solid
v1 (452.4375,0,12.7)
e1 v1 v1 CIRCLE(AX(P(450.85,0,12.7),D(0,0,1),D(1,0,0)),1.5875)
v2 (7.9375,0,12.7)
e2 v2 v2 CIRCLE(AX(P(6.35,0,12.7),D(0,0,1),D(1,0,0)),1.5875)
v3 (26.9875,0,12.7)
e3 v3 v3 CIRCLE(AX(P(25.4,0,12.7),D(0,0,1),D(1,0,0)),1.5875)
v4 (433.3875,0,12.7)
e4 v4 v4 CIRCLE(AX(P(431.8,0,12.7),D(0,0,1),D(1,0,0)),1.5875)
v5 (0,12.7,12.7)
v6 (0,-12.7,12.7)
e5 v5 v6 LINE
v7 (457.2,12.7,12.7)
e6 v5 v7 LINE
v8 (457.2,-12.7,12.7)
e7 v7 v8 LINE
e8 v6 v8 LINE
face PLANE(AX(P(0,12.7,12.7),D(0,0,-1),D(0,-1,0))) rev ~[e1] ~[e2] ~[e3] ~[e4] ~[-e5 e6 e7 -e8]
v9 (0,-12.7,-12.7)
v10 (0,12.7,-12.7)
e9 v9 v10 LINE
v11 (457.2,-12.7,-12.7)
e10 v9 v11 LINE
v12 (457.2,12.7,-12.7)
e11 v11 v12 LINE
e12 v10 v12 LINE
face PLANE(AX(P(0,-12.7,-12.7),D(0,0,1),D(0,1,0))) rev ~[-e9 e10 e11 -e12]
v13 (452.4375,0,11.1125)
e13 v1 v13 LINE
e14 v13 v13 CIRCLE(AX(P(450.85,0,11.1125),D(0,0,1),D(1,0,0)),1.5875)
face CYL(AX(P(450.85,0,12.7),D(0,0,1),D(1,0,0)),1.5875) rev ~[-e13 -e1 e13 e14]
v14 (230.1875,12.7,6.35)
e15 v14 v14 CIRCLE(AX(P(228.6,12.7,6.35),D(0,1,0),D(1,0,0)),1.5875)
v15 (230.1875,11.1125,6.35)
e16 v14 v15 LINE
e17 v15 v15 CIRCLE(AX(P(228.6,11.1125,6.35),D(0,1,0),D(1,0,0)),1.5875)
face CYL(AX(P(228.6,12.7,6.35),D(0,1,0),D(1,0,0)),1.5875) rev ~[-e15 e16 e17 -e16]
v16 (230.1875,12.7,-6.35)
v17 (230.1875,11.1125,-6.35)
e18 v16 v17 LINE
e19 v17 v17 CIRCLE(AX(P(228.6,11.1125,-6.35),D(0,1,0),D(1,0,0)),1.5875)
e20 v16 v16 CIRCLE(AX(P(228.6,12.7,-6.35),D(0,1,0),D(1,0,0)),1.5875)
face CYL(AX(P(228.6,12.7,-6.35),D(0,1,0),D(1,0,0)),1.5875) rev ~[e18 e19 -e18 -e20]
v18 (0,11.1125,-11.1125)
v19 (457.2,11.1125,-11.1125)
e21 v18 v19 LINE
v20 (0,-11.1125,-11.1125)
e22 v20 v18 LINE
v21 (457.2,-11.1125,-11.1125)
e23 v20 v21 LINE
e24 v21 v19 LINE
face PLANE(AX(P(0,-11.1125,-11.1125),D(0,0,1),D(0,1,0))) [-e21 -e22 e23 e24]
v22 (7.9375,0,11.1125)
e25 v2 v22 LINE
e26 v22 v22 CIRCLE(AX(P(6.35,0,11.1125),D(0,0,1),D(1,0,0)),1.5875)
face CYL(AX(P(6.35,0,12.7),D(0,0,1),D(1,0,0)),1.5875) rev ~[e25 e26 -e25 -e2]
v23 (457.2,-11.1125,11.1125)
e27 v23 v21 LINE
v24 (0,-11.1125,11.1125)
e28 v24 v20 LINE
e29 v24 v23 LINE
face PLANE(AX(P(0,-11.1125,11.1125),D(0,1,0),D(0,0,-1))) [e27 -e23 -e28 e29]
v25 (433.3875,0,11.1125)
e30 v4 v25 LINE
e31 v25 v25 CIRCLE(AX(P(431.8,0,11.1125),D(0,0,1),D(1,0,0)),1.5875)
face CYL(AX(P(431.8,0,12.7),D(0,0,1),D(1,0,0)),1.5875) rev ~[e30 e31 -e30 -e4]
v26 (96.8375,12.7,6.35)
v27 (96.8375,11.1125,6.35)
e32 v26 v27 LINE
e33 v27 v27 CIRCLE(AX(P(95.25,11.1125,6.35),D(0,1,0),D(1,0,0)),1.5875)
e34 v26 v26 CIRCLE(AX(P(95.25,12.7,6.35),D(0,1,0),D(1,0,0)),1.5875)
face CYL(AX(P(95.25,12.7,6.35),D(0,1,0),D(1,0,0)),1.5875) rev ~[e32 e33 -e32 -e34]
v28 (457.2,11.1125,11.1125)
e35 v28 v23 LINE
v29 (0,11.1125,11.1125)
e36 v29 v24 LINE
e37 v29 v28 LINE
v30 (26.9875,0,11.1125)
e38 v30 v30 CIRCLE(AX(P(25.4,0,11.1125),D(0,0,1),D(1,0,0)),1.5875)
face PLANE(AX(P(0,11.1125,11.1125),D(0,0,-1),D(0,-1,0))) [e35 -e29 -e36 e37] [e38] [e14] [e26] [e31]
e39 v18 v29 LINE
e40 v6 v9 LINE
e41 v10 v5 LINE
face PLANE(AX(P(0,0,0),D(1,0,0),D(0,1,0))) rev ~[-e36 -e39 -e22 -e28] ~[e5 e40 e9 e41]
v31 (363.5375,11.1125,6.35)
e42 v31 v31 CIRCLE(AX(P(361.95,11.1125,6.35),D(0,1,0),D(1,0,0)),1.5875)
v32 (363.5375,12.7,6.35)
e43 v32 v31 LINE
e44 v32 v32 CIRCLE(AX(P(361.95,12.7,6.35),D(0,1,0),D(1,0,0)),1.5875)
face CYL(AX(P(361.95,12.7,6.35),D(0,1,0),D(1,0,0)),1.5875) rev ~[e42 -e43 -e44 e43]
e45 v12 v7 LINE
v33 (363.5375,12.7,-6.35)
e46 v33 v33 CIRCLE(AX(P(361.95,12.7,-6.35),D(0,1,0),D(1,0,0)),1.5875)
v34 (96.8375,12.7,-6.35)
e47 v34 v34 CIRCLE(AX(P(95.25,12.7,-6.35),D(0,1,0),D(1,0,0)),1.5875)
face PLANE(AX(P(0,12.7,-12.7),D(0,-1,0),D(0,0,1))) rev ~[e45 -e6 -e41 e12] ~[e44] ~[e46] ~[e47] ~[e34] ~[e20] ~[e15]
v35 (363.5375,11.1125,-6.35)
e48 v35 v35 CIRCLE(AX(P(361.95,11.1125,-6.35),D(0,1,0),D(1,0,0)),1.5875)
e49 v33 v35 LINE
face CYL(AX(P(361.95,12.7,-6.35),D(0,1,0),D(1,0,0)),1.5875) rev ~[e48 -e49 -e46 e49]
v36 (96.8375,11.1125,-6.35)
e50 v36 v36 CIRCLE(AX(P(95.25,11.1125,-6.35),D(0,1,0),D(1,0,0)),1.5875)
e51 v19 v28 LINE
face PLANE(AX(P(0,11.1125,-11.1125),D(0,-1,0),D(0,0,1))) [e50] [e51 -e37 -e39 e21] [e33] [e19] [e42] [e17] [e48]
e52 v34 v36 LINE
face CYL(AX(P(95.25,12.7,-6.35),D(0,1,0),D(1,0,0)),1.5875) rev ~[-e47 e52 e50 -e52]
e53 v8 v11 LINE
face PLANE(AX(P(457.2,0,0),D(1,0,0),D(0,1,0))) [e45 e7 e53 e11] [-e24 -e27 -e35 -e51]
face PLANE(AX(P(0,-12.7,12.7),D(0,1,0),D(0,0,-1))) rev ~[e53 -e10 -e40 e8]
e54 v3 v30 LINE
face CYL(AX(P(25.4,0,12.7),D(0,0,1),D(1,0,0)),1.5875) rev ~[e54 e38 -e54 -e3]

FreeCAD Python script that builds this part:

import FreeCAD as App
import Part
import Sketcher

V = App.Vector
Q = App.Units.Quantity


def add_polygon(sketch, points):
    """Adds a closed chain of lines whose ends are joined by coincident constraints."""
    first, n = sketch.GeometryCount, len(points)
    for a, b in zip(points, points[1:] + points[:1]):
        sketch.addGeometry(Part.LineSegment(App.Vector(*a, 0), App.Vector(*b, 0)), False)
    for i in range(n):
        sketch.addConstraint(Sketcher.Constraint("Coincident", first + i, 2, first + (i + 1) % n, 1))

doc = App.newDocument("Part")
body = doc.addObject("PartDesign::Body", "Body")

sketch1 = body.newObject("Sketcher::SketchObject", "Sketch")
sketch1.AttachmentSupport = (doc.getObject("YZ_Plane"), [""])
sketch1.MapMode = "FlatFace"
add_polygon(sketch1, [(12.7, -12.7), (12.7, 12.7), (-12.7, 12.7), (-12.7, -12.7)])
add_polygon(sketch1, [(-11.1125, 11.1125), (11.1125, 11.1125), (11.1125, -11.1125), (-11.1125, -11.1125)])
sketch1.addConstraint(Sketcher.Constraint("Vertical", 0))
sketch1.addConstraint(Sketcher.Constraint("Horizontal", 1))
sketch1.addConstraint(Sketcher.Constraint("Vertical", 2))
sketch1.addConstraint(Sketcher.Constraint("Horizontal", 3))
sketch1.addConstraint(Sketcher.Constraint("Horizontal", 4))
sketch1.addConstraint(Sketcher.Constraint("Vertical", 5))
sketch1.addConstraint(Sketcher.Constraint("Horizontal", 6))
sketch1.addConstraint(Sketcher.Constraint("Vertical", 7))
sketch1.addConstraint(Sketcher.Constraint("Symmetric", 0, 2, 2, 2, -1, 1))
sketch1.addConstraint(Sketcher.Constraint("Symmetric", 4, 2, 6, 2, -1, 1))
sketch1.addConstraint(Sketcher.Constraint("Equal", 3, 0))
sketch1.addConstraint(Sketcher.Constraint("Equal", 6, 5))
sketch1.addConstraint(Sketcher.Constraint("DistanceX", 1, 2, 1, 1, Q("1 in")))
sketch1.addConstraint(Sketcher.Constraint("DistanceX", 4, 2, 0, 2, Q("0.0625 in")))
pad1 = body.newObject("PartDesign::Pad", "Pad")
pad1.Profile = sketch1
pad1.Length = Q("18 in")

sketch2 = body.newObject("Sketcher::SketchObject", "Sketch001")
sketch2.AttachmentSupport = (doc.getObject("XY_Plane"), [""])
sketch2.MapMode = "FlatFace"
sketch2.AttachmentOffset = App.Placement(V(0, 0, 0.5 * 25.4), App.Rotation())
sketch2.addGeometry(Part.Circle(V(450.85, 0, 0), V(0, 0, 1), 1.5875), False)
sketch2.addGeometry(Part.Circle(V(431.8, 0, 0), V(0, 0, 1), 1.5875), False)
sketch2.addGeometry(Part.Circle(V(6.35, 0, 0), V(0, 0, 1), 1.5875), False)
sketch2.addGeometry(Part.Circle(V(25.4, 0, 0), V(0, 0, 1), 1.5875), False)
sketch2.addConstraint(Sketcher.Constraint("Equal", 0, 1))
sketch2.addConstraint(Sketcher.Constraint("Equal", 1, 2))
sketch2.addConstraint(Sketcher.Constraint("Equal", 2, 3))
sketch2.addConstraint(Sketcher.Constraint("PointOnObject", 0, 3, -1))
sketch2.addConstraint(Sketcher.Constraint("PointOnObject", 1, 3, -1))
sketch2.addConstraint(Sketcher.Constraint("PointOnObject", 2, 3, -1))
sketch2.addConstraint(Sketcher.Constraint("PointOnObject", 3, 3, -1))
sketch2.addConstraint(Sketcher.Constraint("Diameter", 0, Q("0.125 in")))
sketch2.addConstraint(Sketcher.Constraint("DistanceX", -1, 1, 2, 3, Q("0.25 in")))
sketch2.addConstraint(Sketcher.Constraint("DistanceX", 1, 3, 0, 3, Q("0.75 in")))
sketch2.addConstraint(Sketcher.Constraint("DistanceX", 2, 3, 3, 3, Q("0.75 in")))
sketch2.addConstraint(Sketcher.Constraint("DistanceX", -1, 1, 1, 3, Q("17 in")))
pocket1 = body.newObject("PartDesign::Pocket", "Pocket")
pocket1.Profile = sketch2
pocket1.Length = Q("0.0625 in")

sketch3 = body.newObject("Sketcher::SketchObject", "Sketch002")
sketch3.AttachmentSupport = (doc.getObject("XZ_Plane"), [""])
sketch3.MapMode = "FlatFace"
sketch3.AttachmentOffset = App.Placement(V(0, 0, -0.5 * 25.4), App.Rotation())
sketch3.addGeometry(Part.Circle(V(361.95, 6.35, 0), V(0, 0, 1), 1.5875), False)
sketch3.addGeometry(Part.Circle(V(361.95, -6.35, 0), V(0, 0, 1), 1.5875), False)
sketch3.addGeometry(Part.Circle(V(95.25, 6.35, 0), V(0, 0, 1), 1.5875), False)
sketch3.addGeometry(Part.Circle(V(95.25, -6.35, 0), V(0, 0, 1), 1.5875), False)
sketch3.addGeometry(Part.Circle(V(228.6, -6.35, 0), V(0, 0, 1), 1.5875), False)
sketch3.addGeometry(Part.Circle(V(228.6, 6.35, 0), V(0, 0, 1), 1.5875), False)
sketch3.addConstraint(Sketcher.Constraint("Equal", 0, 1))
sketch3.addConstraint(Sketcher.Constraint("Equal", 1, 2))
sketch3.addConstraint(Sketcher.Constraint("Equal", 2, 3))
sketch3.addConstraint(Sketcher.Constraint("Equal", 3, 4))
sketch3.addConstraint(Sketcher.Constraint("Equal", 4, 5))
sketch3.addConstraint(Sketcher.Constraint("Symmetric", 0, 3, 1, 3, -1))
sketch3.addConstraint(Sketcher.Constraint("Symmetric", 2, 3, 3, 3, -1))
sketch3.addConstraint(Sketcher.Constraint("Symmetric", 4, 3, 5, 3, -1))
sketch3.addConstraint(Sketcher.Constraint("Horizontal", 0, 3, 2, 3))
sketch3.addConstraint(Sketcher.Constraint("Horizontal", 3, 3, 4, 3))
sketch3.addConstraint(Sketcher.Constraint("Diameter", 0, Q("0.125 in")))
sketch3.addConstraint(Sketcher.Constraint("DistanceY", 1, 3, 0, 3, Q("0.5 in")))
sketch3.addConstraint(Sketcher.Constraint("DistanceX", 2, 3, 0, 3, Q("10.5 in")))
sketch3.addConstraint(Sketcher.Constraint("DistanceX", -1, 1, 4, 3, Q("9 in")))
sketch3.addConstraint(Sketcher.Constraint("DistanceX", -1, 1, 0, 3, Q("14.25 in")))
pocket2 = body.newObject("PartDesign::Pocket", "Pocket001")
pocket2.Profile = sketch3
pocket2.Type = "UpToFirst"
pocket2.Reversed = True

doc.recompute()
